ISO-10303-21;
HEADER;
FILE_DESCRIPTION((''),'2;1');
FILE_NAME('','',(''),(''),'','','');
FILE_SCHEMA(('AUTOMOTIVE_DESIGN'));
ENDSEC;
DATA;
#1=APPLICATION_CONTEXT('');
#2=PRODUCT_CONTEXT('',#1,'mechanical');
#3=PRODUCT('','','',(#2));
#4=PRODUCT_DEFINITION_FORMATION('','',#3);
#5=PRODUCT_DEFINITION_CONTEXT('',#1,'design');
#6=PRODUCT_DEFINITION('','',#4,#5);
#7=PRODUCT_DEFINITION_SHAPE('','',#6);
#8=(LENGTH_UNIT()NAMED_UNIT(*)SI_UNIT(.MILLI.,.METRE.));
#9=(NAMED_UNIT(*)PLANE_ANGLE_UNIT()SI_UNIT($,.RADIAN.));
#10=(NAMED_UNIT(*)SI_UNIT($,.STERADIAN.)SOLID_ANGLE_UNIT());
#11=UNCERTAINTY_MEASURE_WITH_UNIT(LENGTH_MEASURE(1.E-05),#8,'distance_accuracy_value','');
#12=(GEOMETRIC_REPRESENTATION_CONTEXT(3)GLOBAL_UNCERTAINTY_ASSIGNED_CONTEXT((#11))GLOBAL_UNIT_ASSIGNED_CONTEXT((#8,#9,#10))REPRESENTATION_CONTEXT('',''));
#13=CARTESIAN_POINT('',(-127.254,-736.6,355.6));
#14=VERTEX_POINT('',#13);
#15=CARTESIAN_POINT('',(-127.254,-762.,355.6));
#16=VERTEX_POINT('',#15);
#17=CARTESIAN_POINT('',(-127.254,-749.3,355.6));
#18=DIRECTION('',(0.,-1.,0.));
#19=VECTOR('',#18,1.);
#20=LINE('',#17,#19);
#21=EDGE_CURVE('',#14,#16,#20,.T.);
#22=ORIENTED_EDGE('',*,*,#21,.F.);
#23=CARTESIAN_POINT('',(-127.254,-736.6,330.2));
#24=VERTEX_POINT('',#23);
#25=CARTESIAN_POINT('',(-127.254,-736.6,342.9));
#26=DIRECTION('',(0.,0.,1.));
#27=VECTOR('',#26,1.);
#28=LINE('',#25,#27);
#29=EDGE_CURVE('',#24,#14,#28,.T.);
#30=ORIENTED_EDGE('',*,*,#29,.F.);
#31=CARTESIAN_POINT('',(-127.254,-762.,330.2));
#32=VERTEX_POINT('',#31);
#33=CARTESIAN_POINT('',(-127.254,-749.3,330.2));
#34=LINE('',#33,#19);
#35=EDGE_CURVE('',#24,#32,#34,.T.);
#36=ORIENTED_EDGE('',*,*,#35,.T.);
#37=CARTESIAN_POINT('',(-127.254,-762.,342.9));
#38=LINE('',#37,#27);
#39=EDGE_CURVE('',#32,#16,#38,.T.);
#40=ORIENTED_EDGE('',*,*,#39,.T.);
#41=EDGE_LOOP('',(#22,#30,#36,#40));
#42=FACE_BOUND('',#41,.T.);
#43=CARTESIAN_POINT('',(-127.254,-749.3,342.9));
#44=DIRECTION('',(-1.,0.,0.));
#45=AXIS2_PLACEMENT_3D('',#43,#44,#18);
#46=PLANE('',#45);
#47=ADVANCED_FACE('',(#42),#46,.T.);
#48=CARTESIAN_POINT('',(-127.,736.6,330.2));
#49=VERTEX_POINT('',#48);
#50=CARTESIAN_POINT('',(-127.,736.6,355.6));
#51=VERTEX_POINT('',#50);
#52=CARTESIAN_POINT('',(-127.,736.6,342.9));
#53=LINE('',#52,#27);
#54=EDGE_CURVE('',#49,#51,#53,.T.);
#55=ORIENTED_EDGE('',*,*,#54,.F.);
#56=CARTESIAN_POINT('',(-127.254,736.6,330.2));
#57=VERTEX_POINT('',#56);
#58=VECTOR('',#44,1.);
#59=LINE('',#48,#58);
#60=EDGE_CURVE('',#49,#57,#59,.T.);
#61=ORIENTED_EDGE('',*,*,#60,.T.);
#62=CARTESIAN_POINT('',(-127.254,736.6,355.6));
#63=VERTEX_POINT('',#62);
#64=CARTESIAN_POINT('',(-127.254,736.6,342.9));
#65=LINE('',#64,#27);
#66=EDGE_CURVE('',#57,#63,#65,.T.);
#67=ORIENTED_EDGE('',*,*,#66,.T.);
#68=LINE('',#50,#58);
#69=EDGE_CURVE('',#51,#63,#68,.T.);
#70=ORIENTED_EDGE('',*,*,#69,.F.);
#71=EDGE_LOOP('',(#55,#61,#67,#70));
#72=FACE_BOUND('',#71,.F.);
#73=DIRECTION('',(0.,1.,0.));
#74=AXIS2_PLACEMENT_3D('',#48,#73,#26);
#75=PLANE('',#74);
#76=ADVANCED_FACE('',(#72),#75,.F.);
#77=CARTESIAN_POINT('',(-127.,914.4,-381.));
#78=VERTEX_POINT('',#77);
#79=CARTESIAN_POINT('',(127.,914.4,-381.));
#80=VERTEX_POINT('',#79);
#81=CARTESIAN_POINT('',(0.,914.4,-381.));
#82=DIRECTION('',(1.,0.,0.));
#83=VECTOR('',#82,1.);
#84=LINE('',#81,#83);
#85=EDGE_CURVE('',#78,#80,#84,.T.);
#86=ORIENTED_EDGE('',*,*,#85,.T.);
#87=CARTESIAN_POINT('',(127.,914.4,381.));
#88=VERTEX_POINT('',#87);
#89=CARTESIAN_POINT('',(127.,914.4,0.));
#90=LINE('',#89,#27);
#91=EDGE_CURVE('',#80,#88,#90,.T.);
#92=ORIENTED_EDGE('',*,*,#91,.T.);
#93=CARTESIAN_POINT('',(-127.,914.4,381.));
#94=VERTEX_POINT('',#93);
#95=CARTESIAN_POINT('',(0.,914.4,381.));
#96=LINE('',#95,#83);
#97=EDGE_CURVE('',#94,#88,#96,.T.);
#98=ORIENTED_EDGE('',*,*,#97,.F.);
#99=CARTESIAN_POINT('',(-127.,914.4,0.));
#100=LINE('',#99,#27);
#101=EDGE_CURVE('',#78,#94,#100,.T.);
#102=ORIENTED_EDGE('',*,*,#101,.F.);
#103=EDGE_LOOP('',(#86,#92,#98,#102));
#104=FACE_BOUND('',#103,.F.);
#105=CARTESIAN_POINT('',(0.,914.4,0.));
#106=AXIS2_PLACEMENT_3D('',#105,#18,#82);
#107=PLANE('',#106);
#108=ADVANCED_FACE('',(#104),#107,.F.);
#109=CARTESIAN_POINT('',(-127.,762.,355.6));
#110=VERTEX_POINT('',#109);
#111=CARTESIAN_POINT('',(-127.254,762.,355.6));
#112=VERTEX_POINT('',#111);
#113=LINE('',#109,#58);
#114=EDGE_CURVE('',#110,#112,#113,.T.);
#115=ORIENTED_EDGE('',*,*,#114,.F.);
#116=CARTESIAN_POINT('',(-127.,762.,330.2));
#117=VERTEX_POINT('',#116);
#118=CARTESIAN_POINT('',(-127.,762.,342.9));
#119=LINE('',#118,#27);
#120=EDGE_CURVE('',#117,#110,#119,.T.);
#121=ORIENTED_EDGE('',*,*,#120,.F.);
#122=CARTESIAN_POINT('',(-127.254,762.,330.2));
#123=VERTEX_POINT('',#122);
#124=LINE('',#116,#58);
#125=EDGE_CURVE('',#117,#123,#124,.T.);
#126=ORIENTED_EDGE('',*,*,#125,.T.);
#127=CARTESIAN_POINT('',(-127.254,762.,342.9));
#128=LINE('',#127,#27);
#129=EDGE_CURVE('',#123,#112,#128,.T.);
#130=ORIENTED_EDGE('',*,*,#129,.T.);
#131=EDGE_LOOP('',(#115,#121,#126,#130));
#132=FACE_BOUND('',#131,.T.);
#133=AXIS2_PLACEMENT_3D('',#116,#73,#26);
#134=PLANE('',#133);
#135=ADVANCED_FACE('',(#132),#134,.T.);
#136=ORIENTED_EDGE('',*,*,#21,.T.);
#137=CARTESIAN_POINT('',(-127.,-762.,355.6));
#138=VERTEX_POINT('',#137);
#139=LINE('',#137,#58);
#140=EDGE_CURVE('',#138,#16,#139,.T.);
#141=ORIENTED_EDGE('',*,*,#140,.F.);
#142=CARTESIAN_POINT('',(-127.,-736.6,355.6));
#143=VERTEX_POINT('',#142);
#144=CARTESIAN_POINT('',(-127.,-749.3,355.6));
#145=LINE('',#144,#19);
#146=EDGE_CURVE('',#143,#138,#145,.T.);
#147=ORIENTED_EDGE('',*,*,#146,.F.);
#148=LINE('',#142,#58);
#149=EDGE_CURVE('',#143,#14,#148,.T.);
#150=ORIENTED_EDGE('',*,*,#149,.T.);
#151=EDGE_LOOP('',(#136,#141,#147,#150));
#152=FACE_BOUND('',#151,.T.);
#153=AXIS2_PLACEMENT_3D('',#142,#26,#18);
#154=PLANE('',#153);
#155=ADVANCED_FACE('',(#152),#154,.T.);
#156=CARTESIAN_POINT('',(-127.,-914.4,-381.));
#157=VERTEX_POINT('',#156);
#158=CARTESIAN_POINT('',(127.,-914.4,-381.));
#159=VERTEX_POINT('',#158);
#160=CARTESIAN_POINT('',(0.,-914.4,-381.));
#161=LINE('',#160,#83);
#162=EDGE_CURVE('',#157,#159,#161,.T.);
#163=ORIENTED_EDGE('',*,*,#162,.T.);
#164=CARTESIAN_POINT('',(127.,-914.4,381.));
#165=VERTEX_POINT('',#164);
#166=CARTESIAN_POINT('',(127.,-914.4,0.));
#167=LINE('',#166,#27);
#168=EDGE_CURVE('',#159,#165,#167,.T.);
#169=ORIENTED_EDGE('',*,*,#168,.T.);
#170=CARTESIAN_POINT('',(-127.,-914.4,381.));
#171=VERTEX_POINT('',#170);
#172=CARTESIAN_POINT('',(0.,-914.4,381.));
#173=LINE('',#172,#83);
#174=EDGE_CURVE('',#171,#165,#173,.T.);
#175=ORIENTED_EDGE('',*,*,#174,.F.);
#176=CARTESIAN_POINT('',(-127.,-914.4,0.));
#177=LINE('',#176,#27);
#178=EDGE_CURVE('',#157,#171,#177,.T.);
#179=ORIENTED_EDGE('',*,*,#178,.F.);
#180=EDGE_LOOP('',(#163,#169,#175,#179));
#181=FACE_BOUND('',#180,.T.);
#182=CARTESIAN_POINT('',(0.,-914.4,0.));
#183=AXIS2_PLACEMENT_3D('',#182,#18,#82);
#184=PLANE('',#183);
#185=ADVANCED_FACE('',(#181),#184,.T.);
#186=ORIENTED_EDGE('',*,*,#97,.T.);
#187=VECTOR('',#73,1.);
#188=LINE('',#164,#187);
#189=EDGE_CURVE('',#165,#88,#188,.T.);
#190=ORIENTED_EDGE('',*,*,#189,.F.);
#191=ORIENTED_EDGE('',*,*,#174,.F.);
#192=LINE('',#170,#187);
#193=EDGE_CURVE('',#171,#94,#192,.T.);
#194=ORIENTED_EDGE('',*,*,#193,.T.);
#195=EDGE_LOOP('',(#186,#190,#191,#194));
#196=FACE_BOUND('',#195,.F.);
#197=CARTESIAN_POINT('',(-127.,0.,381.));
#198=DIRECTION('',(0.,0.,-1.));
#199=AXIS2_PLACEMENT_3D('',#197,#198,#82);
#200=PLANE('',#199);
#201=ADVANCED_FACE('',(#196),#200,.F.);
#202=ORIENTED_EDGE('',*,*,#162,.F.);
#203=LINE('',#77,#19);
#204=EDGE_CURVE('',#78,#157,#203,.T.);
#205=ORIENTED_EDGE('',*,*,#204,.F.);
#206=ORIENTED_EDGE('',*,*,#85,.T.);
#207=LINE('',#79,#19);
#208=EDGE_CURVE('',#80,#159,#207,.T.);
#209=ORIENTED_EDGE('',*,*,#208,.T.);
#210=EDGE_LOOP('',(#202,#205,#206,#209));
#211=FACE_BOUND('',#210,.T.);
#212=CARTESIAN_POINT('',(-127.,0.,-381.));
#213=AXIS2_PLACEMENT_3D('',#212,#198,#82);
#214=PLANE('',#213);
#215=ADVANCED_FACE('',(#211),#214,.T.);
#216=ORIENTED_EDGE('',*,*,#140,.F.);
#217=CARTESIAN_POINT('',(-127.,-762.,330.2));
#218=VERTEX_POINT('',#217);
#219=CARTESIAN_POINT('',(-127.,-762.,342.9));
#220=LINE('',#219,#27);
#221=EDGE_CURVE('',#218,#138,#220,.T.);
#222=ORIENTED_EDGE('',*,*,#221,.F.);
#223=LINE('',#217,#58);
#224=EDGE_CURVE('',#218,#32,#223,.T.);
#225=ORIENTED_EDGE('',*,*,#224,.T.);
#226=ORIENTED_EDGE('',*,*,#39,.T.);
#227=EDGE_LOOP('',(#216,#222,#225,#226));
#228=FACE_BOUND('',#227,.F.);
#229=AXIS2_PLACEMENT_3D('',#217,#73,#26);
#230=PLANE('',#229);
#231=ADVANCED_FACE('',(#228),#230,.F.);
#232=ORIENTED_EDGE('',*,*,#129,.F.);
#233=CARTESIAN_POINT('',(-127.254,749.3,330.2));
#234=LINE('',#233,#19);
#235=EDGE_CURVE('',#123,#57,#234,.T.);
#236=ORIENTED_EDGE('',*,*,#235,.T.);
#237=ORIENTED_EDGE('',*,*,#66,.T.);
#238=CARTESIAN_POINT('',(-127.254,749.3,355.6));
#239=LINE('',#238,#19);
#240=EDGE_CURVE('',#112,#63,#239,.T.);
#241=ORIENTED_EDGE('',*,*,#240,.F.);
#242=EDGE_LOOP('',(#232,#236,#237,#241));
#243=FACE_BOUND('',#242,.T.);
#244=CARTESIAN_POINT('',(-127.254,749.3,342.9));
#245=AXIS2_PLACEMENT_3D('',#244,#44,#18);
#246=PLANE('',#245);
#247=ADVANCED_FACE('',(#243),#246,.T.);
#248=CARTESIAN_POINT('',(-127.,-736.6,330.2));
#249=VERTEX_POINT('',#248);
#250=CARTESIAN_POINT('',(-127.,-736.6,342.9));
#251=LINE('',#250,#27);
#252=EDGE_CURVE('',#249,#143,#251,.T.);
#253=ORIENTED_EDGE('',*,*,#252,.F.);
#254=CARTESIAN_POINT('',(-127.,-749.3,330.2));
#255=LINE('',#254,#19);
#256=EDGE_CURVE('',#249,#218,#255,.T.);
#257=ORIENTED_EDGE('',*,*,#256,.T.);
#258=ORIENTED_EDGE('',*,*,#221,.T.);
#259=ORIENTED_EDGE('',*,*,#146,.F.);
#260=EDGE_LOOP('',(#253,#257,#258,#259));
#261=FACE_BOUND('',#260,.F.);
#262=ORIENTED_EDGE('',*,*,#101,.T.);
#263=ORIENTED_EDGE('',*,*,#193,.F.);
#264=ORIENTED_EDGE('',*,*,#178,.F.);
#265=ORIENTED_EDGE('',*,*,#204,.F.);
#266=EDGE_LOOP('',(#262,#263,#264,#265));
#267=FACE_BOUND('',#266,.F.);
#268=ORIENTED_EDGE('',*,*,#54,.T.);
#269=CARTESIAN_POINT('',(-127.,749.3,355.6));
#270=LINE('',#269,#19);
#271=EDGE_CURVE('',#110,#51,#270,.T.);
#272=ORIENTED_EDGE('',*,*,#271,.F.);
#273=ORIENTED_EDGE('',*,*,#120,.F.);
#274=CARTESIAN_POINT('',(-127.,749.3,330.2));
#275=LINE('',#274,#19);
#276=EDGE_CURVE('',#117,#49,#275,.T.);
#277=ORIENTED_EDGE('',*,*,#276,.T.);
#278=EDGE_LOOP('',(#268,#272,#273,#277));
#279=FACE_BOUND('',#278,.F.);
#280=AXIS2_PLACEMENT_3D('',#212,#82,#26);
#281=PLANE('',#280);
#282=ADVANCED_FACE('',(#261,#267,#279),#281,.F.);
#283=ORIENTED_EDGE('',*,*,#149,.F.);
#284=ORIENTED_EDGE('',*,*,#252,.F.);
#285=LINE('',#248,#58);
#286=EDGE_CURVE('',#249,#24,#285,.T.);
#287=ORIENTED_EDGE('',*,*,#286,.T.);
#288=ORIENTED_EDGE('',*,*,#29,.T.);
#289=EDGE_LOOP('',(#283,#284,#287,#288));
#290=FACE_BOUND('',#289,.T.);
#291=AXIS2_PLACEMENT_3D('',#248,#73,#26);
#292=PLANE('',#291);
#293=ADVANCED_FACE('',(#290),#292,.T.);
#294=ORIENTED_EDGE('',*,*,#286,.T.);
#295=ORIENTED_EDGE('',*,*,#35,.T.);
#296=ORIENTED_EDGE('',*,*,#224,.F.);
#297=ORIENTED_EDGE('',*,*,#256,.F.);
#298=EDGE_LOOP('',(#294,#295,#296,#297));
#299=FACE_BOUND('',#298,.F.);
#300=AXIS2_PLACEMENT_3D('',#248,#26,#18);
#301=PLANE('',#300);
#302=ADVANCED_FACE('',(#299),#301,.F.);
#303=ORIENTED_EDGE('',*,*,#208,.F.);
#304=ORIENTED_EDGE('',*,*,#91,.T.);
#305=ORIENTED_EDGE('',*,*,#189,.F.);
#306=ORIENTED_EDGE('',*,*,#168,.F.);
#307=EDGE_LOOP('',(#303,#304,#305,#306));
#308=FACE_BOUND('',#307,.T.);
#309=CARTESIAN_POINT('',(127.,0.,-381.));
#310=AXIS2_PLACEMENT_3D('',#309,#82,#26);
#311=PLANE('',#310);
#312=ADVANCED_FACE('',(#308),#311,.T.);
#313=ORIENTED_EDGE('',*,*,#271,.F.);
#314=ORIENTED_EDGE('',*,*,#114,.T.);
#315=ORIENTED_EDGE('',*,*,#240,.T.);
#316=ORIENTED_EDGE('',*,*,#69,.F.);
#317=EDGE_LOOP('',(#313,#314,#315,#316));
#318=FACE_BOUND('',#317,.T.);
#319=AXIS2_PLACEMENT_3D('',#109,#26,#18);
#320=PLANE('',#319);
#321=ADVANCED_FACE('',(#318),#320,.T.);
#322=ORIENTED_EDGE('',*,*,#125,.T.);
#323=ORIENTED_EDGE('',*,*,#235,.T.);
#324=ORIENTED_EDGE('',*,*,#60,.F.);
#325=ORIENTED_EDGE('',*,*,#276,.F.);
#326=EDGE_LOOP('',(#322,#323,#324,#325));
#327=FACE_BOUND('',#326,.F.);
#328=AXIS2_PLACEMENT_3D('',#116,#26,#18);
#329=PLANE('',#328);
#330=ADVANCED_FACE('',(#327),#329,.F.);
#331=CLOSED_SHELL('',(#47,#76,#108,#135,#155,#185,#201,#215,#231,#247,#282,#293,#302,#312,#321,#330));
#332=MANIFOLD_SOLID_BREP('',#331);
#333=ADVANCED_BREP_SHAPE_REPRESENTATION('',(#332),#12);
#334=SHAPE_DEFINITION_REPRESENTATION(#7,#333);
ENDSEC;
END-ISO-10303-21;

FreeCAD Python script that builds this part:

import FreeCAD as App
import Part
import Sketcher

V = App.Vector
Q = App.Units.Quantity


def add_polygon(sketch, points):
    """Adds a closed chain of lines whose ends are joined by coincident constraints."""
    first, n = sketch.GeometryCount, len(points)
    for a, b in zip(points, points[1:] + points[:1]):
        sketch.addGeometry(Part.LineSegment(App.Vector(*a, 0), App.Vector(*b, 0)), False)
    for i in range(n):
        sketch.addConstraint(Sketcher.Constraint("Coincident", first + i, 2, first + (i + 1) % n, 1))

doc = App.newDocument("Part")
params = doc.addObject("Spreadsheet::Sheet", "Params")
for row, (alias, value) in enumerate([
    ("sketch1_width", "10 in"),
    ("sketch1_height", "30 in"),
    ("pad1_length", "72 in"),
    ("sketch2_width", "1 in"),
    ("pad2_length", "0.01 in"),
], start=1):
    params.set(f"A{row}", alias)
    params.set(f"B{row}", "=" + value)
    params.setAlias(f"B{row}", alias)

body = doc.addObject("PartDesign::Body", "Body")

# Sketch on XZ plane
sketch1 = body.newObject("Sketcher::SketchObject", "Sketch")
sketch1.AttachmentSupport = (doc.getObject("XZ_Plane"), [""])
sketch1.MapMode = "FlatFace"
add_polygon(sketch1, [(-127, 381), (-127, -381), (127, -381), (127, 381)])  # lines 0-3
sketch1.addConstraint(Sketcher.Constraint("Vertical", 0))
sketch1.addConstraint(Sketcher.Constraint("Horizontal", 1))
sketch1.addConstraint(Sketcher.Constraint("Vertical", 2))
sketch1.addConstraint(Sketcher.Constraint("Horizontal", 3))
sketch1.addConstraint(Sketcher.Constraint("Symmetric", 0, 2, 2, 2, -1, 1))
sketch1.addConstraint(Sketcher.Constraint("DistanceX", 1, 1, 1, 2, Q("10 in")))
sketch1.addConstraint(Sketcher.Constraint("DistanceY", 0, 2, 0, 1, Q("30 in")))
sketch1.setExpression("Constraints[9]", "Params.sketch1_width")
sketch1.setExpression("Constraints[10]", "Params.sketch1_height")
pad1 = body.newObject("PartDesign::Pad", "Pad")
pad1.Profile = sketch1
pad1.setExpression("Length", "Params.pad1_length")
pad1.Midplane = True

# Sketch on YZ plane
sketch2 = body.newObject("Sketcher::SketchObject", "Sketch001")
sketch2.AttachmentSupport = (doc.getObject("YZ_Plane"), [""])
sketch2.MapMode = "FlatFace"
sketch2.AttachmentOffset = App.Placement(V(0, 0, -5 * 25.4), App.Rotation())
add_polygon(sketch2, [(-737, 356), (-737, 330), (-762, 330), (-762, 356)])  # lines 0-3
add_polygon(sketch2, [(762, 356), (762, 330), (737, 330), (737, 356)])  # lines 4-7
sketch2.addConstraint(Sketcher.Constraint("Vertical", 0))
sketch2.addConstraint(Sketcher.Constraint("Horizontal", 1))
sketch2.addConstraint(Sketcher.Constraint("Vertical", 2))
sketch2.addConstraint(Sketcher.Constraint("Horizontal", 3))
sketch2.addConstraint(Sketcher.Constraint("Vertical", 4))
sketch2.addConstraint(Sketcher.Constraint("Horizontal", 5))
sketch2.addConstraint(Sketcher.Constraint("Vertical", 6))
sketch2.addConstraint(Sketcher.Constraint("Horizontal", 7))
sketch2.addConstraint(Sketcher.Constraint("Symmetric", 1, 2, 4, 2, -2))
sketch2.addConstraint(Sketcher.Constraint("Symmetric", 3, 2, 6, 2, -2))
sketch2.addConstraint(Sketcher.Constraint("Equal", 7, 0))
sketch2.addConstraint(Sketcher.Constraint("DistanceX", 1, 2, 1, 1, Q("1 in")))
sketch2.addConstraint(Sketcher.Constraint("DistanceX", 0, 2, -1, 1, Q("29 in")))
sketch2.addConstraint(Sketcher.Constraint("DistanceY", -1, 1, 0, 2, Q("13 in")))
sketch2.setExpression("Constraints[19]", "Params.sketch2_width")
pad2 = body.newObject("PartDesign::Pad", "Pad001")
pad2.Profile = sketch2
pad2.setExpression("Length", "Params.pad2_length")
pad2.Reversed = True

doc.recompute()
